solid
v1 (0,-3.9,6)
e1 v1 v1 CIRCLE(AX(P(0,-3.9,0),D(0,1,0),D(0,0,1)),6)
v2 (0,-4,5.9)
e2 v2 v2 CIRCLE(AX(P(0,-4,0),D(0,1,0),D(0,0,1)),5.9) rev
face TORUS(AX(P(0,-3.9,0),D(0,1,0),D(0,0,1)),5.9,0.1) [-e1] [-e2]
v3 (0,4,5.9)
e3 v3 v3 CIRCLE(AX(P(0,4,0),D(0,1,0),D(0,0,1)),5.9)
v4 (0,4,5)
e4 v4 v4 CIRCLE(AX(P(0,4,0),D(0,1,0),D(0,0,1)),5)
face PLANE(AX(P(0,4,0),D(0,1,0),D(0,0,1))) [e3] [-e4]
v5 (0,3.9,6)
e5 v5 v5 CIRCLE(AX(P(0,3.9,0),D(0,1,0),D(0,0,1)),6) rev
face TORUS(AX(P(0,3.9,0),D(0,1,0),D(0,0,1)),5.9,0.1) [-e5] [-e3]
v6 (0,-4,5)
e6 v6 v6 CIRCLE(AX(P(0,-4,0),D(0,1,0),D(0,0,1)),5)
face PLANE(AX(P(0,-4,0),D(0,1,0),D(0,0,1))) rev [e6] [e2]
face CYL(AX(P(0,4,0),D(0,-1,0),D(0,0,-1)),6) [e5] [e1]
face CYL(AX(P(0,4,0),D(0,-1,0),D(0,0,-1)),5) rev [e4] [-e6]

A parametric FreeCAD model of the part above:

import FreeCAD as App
import Part
import Sketcher
Q = App.Units.Quantity


def edges_at(feature, points):
    """Names of the edges that pass closest to the given points."""
    edges = feature.Shape.Edges
    near = lambda p: min(range(len(edges)), key=lambda i: edges[i].distToShape(Part.Vertex(*p))[0])
    return sorted({f"Edge{near(p) + 1}" for p in points})

doc = App.newDocument("Part")
params = doc.addObject("Spreadsheet::Sheet", "Params")
for row, (alias, value) in enumerate([
    ("sketch1_diameter", "12 mm"),
    ("sketch1_diameter2", "10 mm"),
    ("pad1_length", "8 mm"),
    ("fillet_radius", "0.1 mm"),
], start=1):
    params.set(f"A{row}", alias)
    params.set(f"B{row}", "=" + value)
    params.setAlias(f"B{row}", alias)

body = doc.addObject("PartDesign::Body", "Body")

sketch1 = doc.addObject("Sketcher::SketchObject", "Sketch")
body.addObject(sketch1)
sketch1.AttachmentSupport = (doc.XZ_Plane, [""])
sketch1.MapMode = "FlatFace"
sketch1.addGeometry([
    Part.Circle(App.Vector(0, 0, 0), App.Vector(0, 0, 1), 6),
    Part.Circle(App.Vector(0, 0, 0), App.Vector(0, 0, 1), 5),
], False)
sketch1.addConstraint([
    Sketcher.Constraint("Coincident", 0, 3, -1, 1),
    Sketcher.Constraint("Coincident", 1, 3, -1, 1),
    Sketcher.Constraint("Diameter", 0, Q("12 mm")),
    Sketcher.Constraint("Diameter", 1, Q("10 mm")),
])
sketch1.setExpression("Constraints[2]", "Params.sketch1_diameter")
sketch1.setExpression("Constraints[3]", "Params.sketch1_diameter2")
pad1 = doc.addObject("PartDesign::Pad", "Pad")
body.addObject(pad1)
pad1.Profile = sketch1
pad1.setExpression("Length", "Params.pad1_length")
pad1.Midplane = True
doc.recompute()

fillet = doc.addObject("PartDesign::Fillet", "Fillet")
body.addObject(fillet)
fillet.Base = (pad1, edges_at(pad1, [(0, -4, -6), (0, 4, -6)]))
fillet.setExpression("Radius", "Params.fillet_radius")

doc.recompute()
